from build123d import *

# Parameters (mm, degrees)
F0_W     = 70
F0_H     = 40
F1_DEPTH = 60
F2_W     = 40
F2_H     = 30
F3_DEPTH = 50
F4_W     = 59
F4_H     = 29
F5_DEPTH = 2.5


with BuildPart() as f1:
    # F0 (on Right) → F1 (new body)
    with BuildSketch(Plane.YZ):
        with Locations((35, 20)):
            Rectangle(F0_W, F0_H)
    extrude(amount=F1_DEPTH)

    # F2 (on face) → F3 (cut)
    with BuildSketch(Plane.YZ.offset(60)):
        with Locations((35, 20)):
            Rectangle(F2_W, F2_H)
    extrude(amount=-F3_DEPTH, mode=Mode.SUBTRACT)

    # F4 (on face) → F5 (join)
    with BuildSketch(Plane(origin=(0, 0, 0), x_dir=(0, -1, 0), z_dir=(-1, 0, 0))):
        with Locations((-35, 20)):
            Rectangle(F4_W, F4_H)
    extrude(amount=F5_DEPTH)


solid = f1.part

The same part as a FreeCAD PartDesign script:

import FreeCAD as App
import Part
import Sketcher
Q = App.Units.Quantity

doc = App.newDocument("Part")
body = doc.addObject("PartDesign::Body", "Body")

sketch1 = body.newObject("Sketcher::SketchObject", "Sketch")
sketch1.AttachmentSupport = (doc.getObject("YZ_Plane"), [""])
sketch1.MapMode = "FlatFace"
sketch1.addGeometry(Part.LineSegment(App.Vector(0, 40, 0), App.Vector(0, 0, 0)), False)
sketch1.addGeometry(Part.LineSegment(App.Vector(0, 0, 0), App.Vector(70, 0, 0)), False)
sketch1.addGeometry(Part.LineSegment(App.Vector(70, 0, 0), App.Vector(70, 40, 0)), False)
sketch1.addGeometry(Part.LineSegment(App.Vector(70, 40, 0), App.Vector(0, 40, 0)), False)
sketch1.addConstraint(Sketcher.Constraint("Coincident", 0, 2, 1, 1))
sketch1.addConstraint(Sketcher.Constraint("Coincident", 1, 2, 2, 1))
sketch1.addConstraint(Sketcher.Constraint("Coincident", 2, 2, 3, 1))
sketch1.addConstraint(Sketcher.Constraint("Coincident", 3, 2, 0, 1))
sketch1.addConstraint(Sketcher.Constraint("Vertical", 0))
sketch1.addConstraint(Sketcher.Constraint("Horizontal", 1))
sketch1.addConstraint(Sketcher.Constraint("Vertical", 2))
sketch1.addConstraint(Sketcher.Constraint("Horizontal", 3))
sketch1.addConstraint(Sketcher.Constraint("Coincident", 0, 2, -1, 1))
sketch1.addConstraint(Sketcher.Constraint("DistanceX", 1, 1, 1, 2, Q("70 mm")))
sketch1.addConstraint(Sketcher.Constraint("DistanceY", 0, 2, 0, 1, Q("40 mm")))
pad1 = body.newObject("PartDesign::Pad", "Pad")
pad1.Profile = sketch1
pad1.Length = 60

sketch2 = body.newObject("Sketcher::SketchObject", "Sketch001")
sketch2.AttachmentSupport = (doc.getObject("YZ_Plane"), [""])
sketch2.MapMode = "FlatFace"
sketch2.AttachmentOffset = App.Placement(App.Vector(0, 0, 60), App.Rotation())
sketch2.addGeometry(Part.LineSegment(App.Vector(15, 35, 0), App.Vector(15, 5, 0)), False)
sketch2.addGeometry(Part.LineSegment(App.Vector(15, 5, 0), App.Vector(55, 5, 0)), False)
sketch2.addGeometry(Part.LineSegment(App.Vector(55, 5, 0), App.Vector(55, 35, 0)), False)
sketch2.addGeometry(Part.LineSegment(App.Vector(55, 35, 0), App.Vector(15, 35, 0)), False)
sketch2.addConstraint(Sketcher.Constraint("Coincident", 0, 2, 1, 1))
sketch2.addConstraint(Sketcher.Constraint("Coincident", 1, 2, 2, 1))
sketch2.addConstraint(Sketcher.Constraint("Coincident", 2, 2, 3, 1))
sketch2.addConstraint(Sketcher.Constraint("Coincident", 3, 2, 0, 1))
sketch2.addConstraint(Sketcher.Constraint("Vertical", 0))
sketch2.addConstraint(Sketcher.Constraint("Horizontal", 1))
sketch2.addConstraint(Sketcher.Constraint("Vertical", 2))
sketch2.addConstraint(Sketcher.Constraint("Horizontal", 3))
sketch2.addConstraint(Sketcher.Constraint("DistanceX", 1, 1, 1, 2, Q("40 mm")))
sketch2.addConstraint(Sketcher.Constraint("DistanceY", 0, 2, 0, 1, Q("30 mm")))
sketch2.addConstraint(Sketcher.Constraint("DistanceX", -1, 1, 0, 2, Q("15 mm")))
sketch2.addConstraint(Sketcher.Constraint("DistanceY", -1, 1, 0, 2, Q("5 mm")))
pocket1 = body.newObject("PartDesign::Pocket", "Pocket")
pocket1.Profile = sketch2
pocket1.Length = 50

sketch3 = body.newObject("Sketcher::SketchObject", "Sketch002")
sketch3.AttachmentSupport = (doc.getObject("YZ_Plane"), [""])
sketch3.MapMode = "FlatFace"
sketch3.addGeometry(Part.LineSegment(App.Vector(64, 34, 0), App.Vector(64, 6, 0)), False)
sketch3.addGeometry(Part.LineSegment(App.Vector(64, 6, 0), App.Vector(6, 6, 0)), False)
sketch3.addGeometry(Part.LineSegment(App.Vector(6, 6, 0), App.Vector(6, 34, 0)), False)
sketch3.addGeometry(Part.LineSegment(App.Vector(6, 34, 0), App.Vector(64, 34, 0)), False)
sketch3.addConstraint(Sketcher.Constraint("Coincident", 0, 2, 1, 1))
sketch3.addConstraint(Sketcher.Constraint("Coincident", 1, 2, 2, 1))
sketch3.addConstraint(Sketcher.Constraint("Coincident", 2, 2, 3, 1))
sketch3.addConstraint(Sketcher.Constraint("Coincident", 3, 2, 0, 1))
sketch3.addConstraint(Sketcher.Constraint("Vertical", 0))
sketch3.addConstraint(Sketcher.Constraint("Horizontal", 1))
sketch3.addConstraint(Sketcher.Constraint("Vertical", 2))
sketch3.addConstraint(Sketcher.Constraint("Horizontal", 3))
sketch3.addConstraint(Sketcher.Constraint("DistanceX", 1, 2, 1, 1, Q("59 mm")))
sketch3.addConstraint(Sketcher.Constraint("DistanceY", 0, 2, 0, 1, Q("29 mm")))
sketch3.addConstraint(Sketcher.Constraint("DistanceX", -1, 1, 0, 2, Q("64.5 mm")))
sketch3.addConstraint(Sketcher.Constraint("DistanceY", -1, 1, 0, 2, Q("5.5 mm")))
pad2 = body.newObject("PartDesign::Pad", "Pad001")
pad2.Profile = sketch3
pad2.Length = 2.5
pad2.Reversed = True

doc.recompute()
